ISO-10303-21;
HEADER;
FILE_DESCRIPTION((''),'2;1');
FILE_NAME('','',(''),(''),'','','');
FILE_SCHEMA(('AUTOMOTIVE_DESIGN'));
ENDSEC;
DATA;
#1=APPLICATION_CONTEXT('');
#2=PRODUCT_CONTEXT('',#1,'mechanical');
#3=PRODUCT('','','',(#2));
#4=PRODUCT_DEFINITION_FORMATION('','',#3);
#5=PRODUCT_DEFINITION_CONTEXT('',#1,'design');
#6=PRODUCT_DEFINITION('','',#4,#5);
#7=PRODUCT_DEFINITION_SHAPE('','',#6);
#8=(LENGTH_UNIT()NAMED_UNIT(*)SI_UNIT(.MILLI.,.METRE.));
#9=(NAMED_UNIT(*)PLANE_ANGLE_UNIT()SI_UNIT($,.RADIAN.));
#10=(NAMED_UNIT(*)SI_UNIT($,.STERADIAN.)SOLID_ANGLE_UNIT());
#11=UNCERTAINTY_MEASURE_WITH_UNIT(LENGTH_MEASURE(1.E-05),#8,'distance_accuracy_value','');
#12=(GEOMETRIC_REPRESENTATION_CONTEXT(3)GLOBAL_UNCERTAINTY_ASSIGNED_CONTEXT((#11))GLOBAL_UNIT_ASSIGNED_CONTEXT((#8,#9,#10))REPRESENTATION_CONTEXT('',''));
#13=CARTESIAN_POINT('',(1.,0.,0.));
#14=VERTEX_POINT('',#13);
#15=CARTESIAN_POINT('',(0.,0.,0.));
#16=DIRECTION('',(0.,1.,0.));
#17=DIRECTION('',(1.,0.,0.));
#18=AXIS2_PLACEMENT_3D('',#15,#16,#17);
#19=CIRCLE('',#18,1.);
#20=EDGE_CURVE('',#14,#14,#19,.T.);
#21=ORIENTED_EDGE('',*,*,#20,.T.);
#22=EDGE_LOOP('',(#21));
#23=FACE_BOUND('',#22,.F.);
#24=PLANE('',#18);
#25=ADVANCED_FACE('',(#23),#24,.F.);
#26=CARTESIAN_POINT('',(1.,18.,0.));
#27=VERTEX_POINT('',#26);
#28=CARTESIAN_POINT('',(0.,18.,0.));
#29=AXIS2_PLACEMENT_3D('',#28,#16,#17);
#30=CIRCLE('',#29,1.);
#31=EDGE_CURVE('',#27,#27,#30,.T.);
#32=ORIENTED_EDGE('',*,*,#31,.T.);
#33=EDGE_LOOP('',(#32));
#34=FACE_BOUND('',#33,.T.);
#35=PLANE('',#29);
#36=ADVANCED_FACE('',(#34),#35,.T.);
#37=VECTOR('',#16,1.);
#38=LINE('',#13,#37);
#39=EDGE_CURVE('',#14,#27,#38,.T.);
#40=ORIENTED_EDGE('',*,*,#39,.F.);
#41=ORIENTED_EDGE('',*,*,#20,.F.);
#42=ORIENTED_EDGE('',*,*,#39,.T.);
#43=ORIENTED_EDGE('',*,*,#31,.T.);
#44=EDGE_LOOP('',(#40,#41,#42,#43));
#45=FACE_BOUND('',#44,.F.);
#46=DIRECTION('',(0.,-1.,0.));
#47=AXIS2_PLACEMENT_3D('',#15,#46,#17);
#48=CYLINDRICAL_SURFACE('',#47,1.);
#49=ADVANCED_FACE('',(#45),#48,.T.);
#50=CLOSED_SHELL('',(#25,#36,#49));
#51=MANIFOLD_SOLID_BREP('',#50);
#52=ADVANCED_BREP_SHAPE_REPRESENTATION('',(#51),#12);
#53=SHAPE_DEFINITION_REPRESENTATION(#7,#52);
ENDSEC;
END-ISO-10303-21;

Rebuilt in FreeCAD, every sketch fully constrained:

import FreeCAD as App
import Part
import Sketcher
Q = App.Units.Quantity

doc = App.newDocument("Part")
body = doc.addObject("PartDesign::Body", "Body")

# Sketch on XZ plane
sketch1 = body.newObject("Sketcher::SketchObject", "Sketch")
sketch1.AttachmentSupport = (doc.getObject("XZ_Plane"), [""])
sketch1.MapMode = "FlatFace"
sketch1.addGeometry(Part.Circle(App.Vector(0, 0, 0), App.Vector(0, 0, 1), 1), False)
sketch1.addConstraint([
    Sketcher.Constraint("Coincident", 0, 3, -1, 1),
    Sketcher.Constraint("Diameter", 0, Q("2 mm")),
])
pad1 = body.newObject("PartDesign::Pad", "Pad")
pad1.Profile = sketch1
pad1.Length = 18
pad1.Reversed = True

doc.recompute()
